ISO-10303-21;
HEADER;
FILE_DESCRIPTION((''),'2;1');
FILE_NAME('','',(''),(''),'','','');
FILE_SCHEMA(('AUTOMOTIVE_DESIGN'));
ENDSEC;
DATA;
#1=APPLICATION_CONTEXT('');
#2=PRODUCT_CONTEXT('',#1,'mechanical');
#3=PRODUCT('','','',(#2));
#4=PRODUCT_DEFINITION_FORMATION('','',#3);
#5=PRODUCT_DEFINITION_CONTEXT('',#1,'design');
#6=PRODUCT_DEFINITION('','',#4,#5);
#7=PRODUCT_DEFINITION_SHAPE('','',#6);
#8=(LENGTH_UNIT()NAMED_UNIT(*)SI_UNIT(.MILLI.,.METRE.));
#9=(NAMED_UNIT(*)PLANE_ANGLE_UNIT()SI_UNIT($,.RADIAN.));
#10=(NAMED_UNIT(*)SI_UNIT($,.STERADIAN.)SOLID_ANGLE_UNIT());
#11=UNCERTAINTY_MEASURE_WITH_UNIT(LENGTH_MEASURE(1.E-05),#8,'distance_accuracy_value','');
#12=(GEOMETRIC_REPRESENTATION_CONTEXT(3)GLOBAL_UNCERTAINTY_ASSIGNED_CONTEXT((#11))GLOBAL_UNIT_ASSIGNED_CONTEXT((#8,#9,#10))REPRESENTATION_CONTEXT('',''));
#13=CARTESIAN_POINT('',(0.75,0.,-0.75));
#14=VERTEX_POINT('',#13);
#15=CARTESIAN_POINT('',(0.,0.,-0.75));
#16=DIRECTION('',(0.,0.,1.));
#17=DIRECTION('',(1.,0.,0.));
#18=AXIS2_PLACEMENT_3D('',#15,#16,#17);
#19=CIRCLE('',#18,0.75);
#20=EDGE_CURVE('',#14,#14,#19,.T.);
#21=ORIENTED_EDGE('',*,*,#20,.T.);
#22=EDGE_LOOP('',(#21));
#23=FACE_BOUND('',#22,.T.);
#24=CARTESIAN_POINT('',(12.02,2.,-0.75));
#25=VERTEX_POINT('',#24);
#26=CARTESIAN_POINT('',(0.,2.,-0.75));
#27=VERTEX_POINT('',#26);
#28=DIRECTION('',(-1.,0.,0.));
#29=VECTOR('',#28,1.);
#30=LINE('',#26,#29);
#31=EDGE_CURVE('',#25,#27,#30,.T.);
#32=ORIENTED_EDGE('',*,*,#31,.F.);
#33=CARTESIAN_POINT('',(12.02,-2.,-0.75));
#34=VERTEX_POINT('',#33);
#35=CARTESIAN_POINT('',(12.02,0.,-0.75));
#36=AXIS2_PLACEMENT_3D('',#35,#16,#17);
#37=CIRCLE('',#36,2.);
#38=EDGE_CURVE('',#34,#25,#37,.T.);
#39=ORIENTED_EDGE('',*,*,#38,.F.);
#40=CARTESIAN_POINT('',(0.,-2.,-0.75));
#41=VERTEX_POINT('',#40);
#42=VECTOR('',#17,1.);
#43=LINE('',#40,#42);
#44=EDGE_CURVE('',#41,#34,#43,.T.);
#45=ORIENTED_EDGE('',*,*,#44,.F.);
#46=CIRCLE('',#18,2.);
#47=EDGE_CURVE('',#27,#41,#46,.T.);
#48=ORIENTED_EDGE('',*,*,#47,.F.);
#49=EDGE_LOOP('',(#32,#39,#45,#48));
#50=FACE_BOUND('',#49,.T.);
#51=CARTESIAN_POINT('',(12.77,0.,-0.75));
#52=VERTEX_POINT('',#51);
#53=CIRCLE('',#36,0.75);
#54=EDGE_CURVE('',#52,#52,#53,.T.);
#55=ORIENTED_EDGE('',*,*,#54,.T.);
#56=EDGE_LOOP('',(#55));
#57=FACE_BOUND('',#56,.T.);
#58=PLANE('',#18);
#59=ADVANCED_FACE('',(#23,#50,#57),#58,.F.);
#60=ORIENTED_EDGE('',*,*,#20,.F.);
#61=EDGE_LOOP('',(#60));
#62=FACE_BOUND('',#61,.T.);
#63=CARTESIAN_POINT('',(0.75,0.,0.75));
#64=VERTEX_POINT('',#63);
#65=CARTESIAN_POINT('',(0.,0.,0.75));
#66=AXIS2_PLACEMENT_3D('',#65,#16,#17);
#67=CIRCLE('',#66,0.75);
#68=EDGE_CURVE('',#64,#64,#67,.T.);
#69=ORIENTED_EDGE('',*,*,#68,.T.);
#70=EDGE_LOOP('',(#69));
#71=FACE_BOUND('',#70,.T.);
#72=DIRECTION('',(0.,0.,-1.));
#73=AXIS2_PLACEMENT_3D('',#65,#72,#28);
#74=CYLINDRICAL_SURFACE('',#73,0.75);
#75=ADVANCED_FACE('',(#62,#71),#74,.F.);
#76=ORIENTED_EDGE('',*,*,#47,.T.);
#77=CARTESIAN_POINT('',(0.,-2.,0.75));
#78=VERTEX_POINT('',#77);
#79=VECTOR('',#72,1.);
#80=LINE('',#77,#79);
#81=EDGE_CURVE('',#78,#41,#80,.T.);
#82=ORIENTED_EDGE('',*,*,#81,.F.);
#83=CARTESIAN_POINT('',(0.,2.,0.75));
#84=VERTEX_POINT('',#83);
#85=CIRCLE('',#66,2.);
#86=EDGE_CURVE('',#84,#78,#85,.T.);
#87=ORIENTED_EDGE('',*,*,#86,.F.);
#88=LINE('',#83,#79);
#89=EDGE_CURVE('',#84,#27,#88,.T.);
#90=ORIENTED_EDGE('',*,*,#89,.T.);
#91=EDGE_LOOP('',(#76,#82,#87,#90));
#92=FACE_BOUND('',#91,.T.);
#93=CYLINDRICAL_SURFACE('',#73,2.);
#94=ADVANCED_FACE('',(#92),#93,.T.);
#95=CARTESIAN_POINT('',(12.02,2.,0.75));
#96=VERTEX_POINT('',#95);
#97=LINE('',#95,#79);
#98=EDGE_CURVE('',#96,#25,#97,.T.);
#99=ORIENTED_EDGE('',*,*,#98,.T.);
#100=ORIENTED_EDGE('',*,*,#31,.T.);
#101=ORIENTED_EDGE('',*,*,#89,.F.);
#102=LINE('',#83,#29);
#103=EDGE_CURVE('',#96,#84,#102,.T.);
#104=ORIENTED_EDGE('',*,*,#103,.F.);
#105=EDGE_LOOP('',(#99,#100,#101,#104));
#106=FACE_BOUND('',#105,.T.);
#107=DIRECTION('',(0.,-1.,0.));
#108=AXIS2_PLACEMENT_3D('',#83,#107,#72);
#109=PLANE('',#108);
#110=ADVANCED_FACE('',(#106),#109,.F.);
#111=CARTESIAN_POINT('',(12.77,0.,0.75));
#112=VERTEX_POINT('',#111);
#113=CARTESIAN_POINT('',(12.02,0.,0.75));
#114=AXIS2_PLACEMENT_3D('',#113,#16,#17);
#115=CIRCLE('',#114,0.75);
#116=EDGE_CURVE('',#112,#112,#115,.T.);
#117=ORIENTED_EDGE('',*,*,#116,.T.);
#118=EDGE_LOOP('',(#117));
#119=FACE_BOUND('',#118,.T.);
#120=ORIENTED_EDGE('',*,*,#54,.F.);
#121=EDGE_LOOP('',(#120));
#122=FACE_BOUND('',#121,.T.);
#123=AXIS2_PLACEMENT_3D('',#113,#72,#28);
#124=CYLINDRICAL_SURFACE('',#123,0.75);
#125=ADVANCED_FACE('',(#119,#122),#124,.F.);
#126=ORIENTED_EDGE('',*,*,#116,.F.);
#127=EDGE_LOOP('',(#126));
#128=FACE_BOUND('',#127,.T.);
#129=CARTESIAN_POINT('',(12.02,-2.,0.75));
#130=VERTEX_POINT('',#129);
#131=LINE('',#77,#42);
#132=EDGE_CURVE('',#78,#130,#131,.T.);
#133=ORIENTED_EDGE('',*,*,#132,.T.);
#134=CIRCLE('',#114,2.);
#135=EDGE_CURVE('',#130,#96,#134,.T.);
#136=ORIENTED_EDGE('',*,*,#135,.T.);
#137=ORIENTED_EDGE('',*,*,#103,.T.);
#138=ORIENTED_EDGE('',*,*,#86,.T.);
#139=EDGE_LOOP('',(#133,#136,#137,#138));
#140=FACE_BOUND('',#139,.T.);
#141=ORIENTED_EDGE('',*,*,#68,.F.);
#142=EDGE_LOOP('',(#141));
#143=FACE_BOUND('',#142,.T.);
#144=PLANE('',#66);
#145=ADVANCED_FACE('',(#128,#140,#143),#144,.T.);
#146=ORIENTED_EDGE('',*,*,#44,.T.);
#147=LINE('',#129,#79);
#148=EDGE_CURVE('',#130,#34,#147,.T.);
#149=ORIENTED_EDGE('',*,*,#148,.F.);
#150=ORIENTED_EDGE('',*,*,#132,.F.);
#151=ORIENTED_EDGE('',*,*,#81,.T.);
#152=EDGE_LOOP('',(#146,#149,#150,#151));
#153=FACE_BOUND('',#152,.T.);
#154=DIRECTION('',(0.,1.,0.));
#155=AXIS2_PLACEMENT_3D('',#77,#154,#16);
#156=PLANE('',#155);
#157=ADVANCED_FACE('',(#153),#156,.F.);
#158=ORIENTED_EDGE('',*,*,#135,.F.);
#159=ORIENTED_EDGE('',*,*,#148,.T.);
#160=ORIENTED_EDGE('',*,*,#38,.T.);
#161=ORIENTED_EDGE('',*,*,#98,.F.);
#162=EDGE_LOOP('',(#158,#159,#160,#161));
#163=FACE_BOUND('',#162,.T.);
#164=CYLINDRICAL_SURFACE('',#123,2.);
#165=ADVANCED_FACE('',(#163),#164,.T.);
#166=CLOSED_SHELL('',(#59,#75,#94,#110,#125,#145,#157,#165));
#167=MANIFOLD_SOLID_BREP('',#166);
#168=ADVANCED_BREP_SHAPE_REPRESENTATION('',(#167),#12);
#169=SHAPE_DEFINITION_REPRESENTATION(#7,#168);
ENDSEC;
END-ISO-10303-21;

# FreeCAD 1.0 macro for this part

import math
import FreeCAD as App
import Part
import Sketcher

doc = App.newDocument("Part")
params = doc.addObject("Spreadsheet::Sheet", "Params")
for row, (alias, value) in enumerate([
    ("sketch1_radius", "2 mm"),
    ("sketch1_diameter", "1.5 mm"),
    ("sketch1_width", "12.02 mm"),
    ("pad1_length", "1.5 mm"),
], start=1):
    params.set(f"A{row}", alias)
    params.set(f"B{row}", "=" + value)
    params.setAlias(f"B{row}", alias)

body = doc.addObject("PartDesign::Body", "Body")

# Sketch on XY plane
sketch1 = doc.addObject("Sketcher::SketchObject", "Sketch")
body.addObject(sketch1)
sketch1.AttachmentSupport = (doc.XY_Plane, [""])
sketch1.MapMode = "FlatFace"
sketch1.addGeometry([
    Part.LineSegment(App.Vector(12.02, 2, 0), App.Vector(0, 2, 0)),  # 0
    Part.ArcOfCircle(Part.Circle(App.Vector(0, 0, 0), App.Vector(0, 0, 1), 2), math.radians(90), math.radians(270)),  # 1
    Part.LineSegment(App.Vector(0, -2, 0), App.Vector(12.02, -2, 0)),  # 2
    Part.ArcOfCircle(Part.Circle(App.Vector(12.02, 0, 0), App.Vector(0, 0, 1), 2), math.radians(-90), math.radians(90)),  # 3
    Part.Circle(App.Vector(12.02, 0, 0), App.Vector(0, 0, 1), 0.75),  # 4
    Part.Circle(App.Vector(0, 0, 0), App.Vector(0, 0, 1), 0.75),  # 5
], False)
sketch1.addConstraint([
    Sketcher.Constraint("Tangent", 0, 2, 1, 1),
    Sketcher.Constraint("Tangent", 1, 2, 2, 1),
    Sketcher.Constraint("Tangent", 2, 2, 3, 1),
    Sketcher.Constraint("Tangent", 3, 2, 0, 1),
    Sketcher.Constraint("Horizontal", 0),
    Sketcher.Constraint("Horizontal", 2),
    Sketcher.Constraint("Coincident", 1, 3, -1, 1),
    Sketcher.Constraint("Coincident", 5, 3, -1, 1),
    Sketcher.Constraint("Coincident", 4, 3, 3, 3),
    Sketcher.Constraint("Equal", 4, 5),
    Sketcher.Constraint("Radius", 1, 2.0),
    Sketcher.Constraint("Diameter", 4, 1.5),
    Sketcher.Constraint("DistanceX", 0, 2, 0, 1, 12.02),
])
sketch1.setExpression("Constraints[10]", "Params.sketch1_radius")
sketch1.setExpression("Constraints[11]", "Params.sketch1_diameter")
sketch1.setExpression("Constraints[12]", "Params.sketch1_width")
pad1 = doc.addObject("PartDesign::Pad", "Pad")
body.addObject(pad1)
pad1.Profile = sketch1
pad1.setExpression("Length", "Params.pad1_length")
pad1.Midplane = True

doc.recompute()
